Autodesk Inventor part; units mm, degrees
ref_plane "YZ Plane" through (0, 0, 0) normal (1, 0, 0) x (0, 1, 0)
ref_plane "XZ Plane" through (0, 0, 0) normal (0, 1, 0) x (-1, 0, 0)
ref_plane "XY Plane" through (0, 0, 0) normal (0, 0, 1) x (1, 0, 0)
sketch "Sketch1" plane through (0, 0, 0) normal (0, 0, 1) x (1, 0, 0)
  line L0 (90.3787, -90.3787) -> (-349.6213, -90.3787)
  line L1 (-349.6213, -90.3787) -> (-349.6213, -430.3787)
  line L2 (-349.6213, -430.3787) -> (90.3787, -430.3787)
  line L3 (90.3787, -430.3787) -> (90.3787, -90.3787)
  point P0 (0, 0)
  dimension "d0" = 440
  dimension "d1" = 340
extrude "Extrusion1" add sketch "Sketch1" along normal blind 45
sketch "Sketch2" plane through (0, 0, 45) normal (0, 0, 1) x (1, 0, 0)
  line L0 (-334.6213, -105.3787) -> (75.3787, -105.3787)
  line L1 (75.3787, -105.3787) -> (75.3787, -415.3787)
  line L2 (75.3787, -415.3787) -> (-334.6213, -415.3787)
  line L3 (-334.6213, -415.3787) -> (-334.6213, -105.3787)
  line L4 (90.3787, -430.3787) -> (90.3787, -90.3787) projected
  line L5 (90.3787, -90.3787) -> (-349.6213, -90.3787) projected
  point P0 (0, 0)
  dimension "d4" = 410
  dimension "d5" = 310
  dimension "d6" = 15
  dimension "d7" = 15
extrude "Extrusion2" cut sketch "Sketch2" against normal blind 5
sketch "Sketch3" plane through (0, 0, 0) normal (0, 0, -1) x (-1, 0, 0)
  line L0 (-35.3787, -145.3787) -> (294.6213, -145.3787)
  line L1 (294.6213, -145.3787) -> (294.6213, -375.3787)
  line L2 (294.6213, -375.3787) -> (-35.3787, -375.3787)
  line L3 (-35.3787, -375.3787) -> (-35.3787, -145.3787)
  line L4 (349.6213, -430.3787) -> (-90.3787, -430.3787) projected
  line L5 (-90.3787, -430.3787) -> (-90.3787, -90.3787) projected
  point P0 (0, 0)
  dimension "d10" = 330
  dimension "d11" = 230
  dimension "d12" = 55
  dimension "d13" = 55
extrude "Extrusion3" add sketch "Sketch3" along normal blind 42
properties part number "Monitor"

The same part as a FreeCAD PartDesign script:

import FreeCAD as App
import Part
import Sketcher
from FreeCAD import Vector

doc = App.newDocument("Part")
body = doc.addObject("PartDesign::Body", "Body")

sketch1 = body.newObject("Sketcher::SketchObject", "Sketch")
sketch1.AttachmentSupport = (doc.getObject("XY_Plane"), [""])
sketch1.MapMode = "FlatFace"
sketch1.addGeometry([
    Part.LineSegment(Vector(90.3787, -430.3787, 0), Vector(90.3787, -90.3787, 0)),
    Part.LineSegment(Vector(90.3787, -90.3787, 0), Vector(-349.6213, -90.3787, 0)),
    Part.LineSegment(Vector(-349.6213, -90.3787, 0), Vector(-349.6213, -430.3787, 0)),
    Part.LineSegment(Vector(-349.6213, -430.3787, 0), Vector(90.3787, -430.3787, 0)),
], False)
sketch1.addConstraint([
    Sketcher.Constraint("Coincident", 0, 2, 1, 1),
    Sketcher.Constraint("Coincident", 1, 2, 2, 1),
    Sketcher.Constraint("Coincident", 2, 2, 3, 1),
    Sketcher.Constraint("Coincident", 3, 2, 0, 1),
    Sketcher.Constraint("Vertical", 0),
    Sketcher.Constraint("Horizontal", 1),
    Sketcher.Constraint("Vertical", 2),
    Sketcher.Constraint("Horizontal", 3),
    Sketcher.Constraint("DistanceX", 1, 2, 1, 1, 440.0),
    Sketcher.Constraint("DistanceY", 0, 1, 0, 2, 340.0),
    Sketcher.Constraint("DistanceX", -1, 1, 0, 2, 90.3787),
    Sketcher.Constraint("DistanceY", 0, 2, -1, 1, 90.3787),
])
pad1 = body.newObject("PartDesign::Pad", "Pad")
pad1.Profile = sketch1
pad1.Length = 45

sketch2 = body.newObject("Sketcher::SketchObject", "Sketch001")
sketch2.AttachmentSupport = (doc.getObject("XY_Plane"), [""])
sketch2.MapMode = "FlatFace"
sketch2.AttachmentOffset = App.Placement(Vector(0, 0, 45), App.Rotation())
sketch2.addGeometry([
    Part.LineSegment(Vector(75.3787, -105.3787, 0), Vector(-334.6213, -105.3787, 0)),
    Part.LineSegment(Vector(-334.6213, -105.3787, 0), Vector(-334.6213, -415.3787, 0)),
    Part.LineSegment(Vector(-334.6213, -415.3787, 0), Vector(75.3787, -415.3787, 0)),
    Part.LineSegment(Vector(75.3787, -415.3787, 0), Vector(75.3787, -105.3787, 0)),
], False)
sketch2.addConstraint([
    Sketcher.Constraint("Coincident", 0, 2, 1, 1),
    Sketcher.Constraint("Coincident", 1, 2, 2, 1),
    Sketcher.Constraint("Coincident", 2, 2, 3, 1),
    Sketcher.Constraint("Coincident", 3, 2, 0, 1),
    Sketcher.Constraint("Horizontal", 0),
    Sketcher.Constraint("Vertical", 1),
    Sketcher.Constraint("Horizontal", 2),
    Sketcher.Constraint("Vertical", 3),
    Sketcher.Constraint("DistanceX", 0, 2, 0, 1, 410.0),
    Sketcher.Constraint("DistanceY", 1, 2, 1, 1, 310.0),
    Sketcher.Constraint("DistanceX", 0, 2, -1, 1, 334.6213),
    Sketcher.Constraint("DistanceY", 0, 2, -1, 1, 105.3787),
])
pocket1 = body.newObject("PartDesign::Pocket", "Pocket")
pocket1.Profile = sketch2
pocket1.Length = 5

sketch3 = body.newObject("Sketcher::SketchObject", "Sketch002")
sketch3.AttachmentSupport = (doc.getObject("XY_Plane"), [""])
sketch3.MapMode = "FlatFace"
sketch3.addGeometry([
    Part.LineSegment(Vector(-294.6213, -145.3787, 0), Vector(35.3787, -145.3787, 0)),
    Part.LineSegment(Vector(35.3787, -145.3787, 0), Vector(35.3787, -375.3787, 0)),
    Part.LineSegment(Vector(35.3787, -375.3787, 0), Vector(-294.6213, -375.3787, 0)),
    Part.LineSegment(Vector(-294.6213, -375.3787, 0), Vector(-294.6213, -145.3787, 0)),
], False)
sketch3.addConstraint([
    Sketcher.Constraint("Coincident", 0, 2, 1, 1),
    Sketcher.Constraint("Coincident", 1, 2, 2, 1),
    Sketcher.Constraint("Coincident", 2, 2, 3, 1),
    Sketcher.Constraint("Coincident", 3, 2, 0, 1),
    Sketcher.Constraint("Horizontal", 0),
    Sketcher.Constraint("Vertical", 1),
    Sketcher.Constraint("Horizontal", 2),
    Sketcher.Constraint("Vertical", 3),
    Sketcher.Constraint("DistanceX", 0, 1, 0, 2, 330.0),
    Sketcher.Constraint("DistanceY", 1, 2, 1, 1, 230.0),
    Sketcher.Constraint("DistanceX", -1, 1, 0, 2, 35.3787),
    Sketcher.Constraint("DistanceY", 0, 2, -1, 1, 145.3787),
])
pad2 = body.newObject("PartDesign::Pad", "Pad001")
pad2.Profile = sketch3
pad2.Length = 42
pad2.Reversed = True

doc.recompute()
